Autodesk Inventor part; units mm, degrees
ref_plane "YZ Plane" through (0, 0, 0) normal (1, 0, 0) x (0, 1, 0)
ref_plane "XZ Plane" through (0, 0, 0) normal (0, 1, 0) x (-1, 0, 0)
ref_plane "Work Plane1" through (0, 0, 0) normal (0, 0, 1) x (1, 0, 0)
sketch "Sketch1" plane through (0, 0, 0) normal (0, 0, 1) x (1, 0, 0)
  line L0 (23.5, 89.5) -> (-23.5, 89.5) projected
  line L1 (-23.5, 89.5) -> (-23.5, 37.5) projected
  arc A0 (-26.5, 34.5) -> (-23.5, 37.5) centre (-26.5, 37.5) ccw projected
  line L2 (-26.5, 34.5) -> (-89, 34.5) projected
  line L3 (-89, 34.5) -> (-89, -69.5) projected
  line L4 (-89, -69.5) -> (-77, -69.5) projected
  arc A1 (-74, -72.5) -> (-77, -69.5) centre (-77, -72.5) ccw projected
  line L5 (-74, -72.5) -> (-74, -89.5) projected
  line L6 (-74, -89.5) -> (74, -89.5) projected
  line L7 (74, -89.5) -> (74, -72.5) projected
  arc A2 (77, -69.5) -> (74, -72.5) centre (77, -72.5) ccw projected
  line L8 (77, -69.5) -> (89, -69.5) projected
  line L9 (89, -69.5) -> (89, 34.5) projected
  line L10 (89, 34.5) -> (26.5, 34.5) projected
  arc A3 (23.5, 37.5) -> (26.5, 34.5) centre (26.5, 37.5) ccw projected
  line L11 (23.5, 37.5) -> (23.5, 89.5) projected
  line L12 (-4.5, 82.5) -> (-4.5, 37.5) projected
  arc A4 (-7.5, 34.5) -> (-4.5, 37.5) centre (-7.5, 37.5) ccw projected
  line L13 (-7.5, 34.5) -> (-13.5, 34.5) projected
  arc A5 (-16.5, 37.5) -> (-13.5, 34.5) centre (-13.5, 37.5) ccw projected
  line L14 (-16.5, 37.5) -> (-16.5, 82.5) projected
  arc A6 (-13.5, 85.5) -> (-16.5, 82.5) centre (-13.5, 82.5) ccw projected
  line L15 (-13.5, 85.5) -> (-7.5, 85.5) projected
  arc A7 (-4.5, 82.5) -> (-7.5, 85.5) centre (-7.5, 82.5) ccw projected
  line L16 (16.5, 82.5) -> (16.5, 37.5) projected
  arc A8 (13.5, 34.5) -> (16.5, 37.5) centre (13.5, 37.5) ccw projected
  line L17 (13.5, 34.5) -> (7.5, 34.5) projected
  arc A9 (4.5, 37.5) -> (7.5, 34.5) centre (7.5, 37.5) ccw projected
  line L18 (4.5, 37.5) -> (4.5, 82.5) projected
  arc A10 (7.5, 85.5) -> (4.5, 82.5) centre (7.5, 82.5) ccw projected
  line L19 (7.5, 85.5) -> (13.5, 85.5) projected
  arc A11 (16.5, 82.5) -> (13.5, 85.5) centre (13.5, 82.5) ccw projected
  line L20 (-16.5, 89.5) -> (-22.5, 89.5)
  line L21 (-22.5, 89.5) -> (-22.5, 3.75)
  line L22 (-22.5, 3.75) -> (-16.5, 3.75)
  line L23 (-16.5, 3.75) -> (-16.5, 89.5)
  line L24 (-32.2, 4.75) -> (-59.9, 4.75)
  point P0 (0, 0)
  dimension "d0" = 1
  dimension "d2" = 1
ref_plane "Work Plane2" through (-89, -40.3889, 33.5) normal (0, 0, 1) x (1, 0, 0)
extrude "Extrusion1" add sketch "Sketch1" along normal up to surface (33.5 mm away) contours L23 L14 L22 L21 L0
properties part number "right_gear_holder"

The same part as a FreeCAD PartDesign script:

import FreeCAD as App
import Part
import Sketcher
Q = App.Units.Quantity

doc = App.newDocument("Part")
params = doc.addObject("Spreadsheet::Sheet", "Params")
for row, (alias, value) in enumerate([
    ("sketch1_width", "6 mm"),
    ("sketch1_height", "85.75 mm"),
    ("pad1_length", "33.5 mm"),
], start=1):
    params.set(f"A{row}", alias)
    params.set(f"B{row}", "=" + value)
    params.setAlias(f"B{row}", alias)

body = doc.addObject("PartDesign::Body", "Body")

# Sketch on XY plane
sketch1 = doc.addObject("Sketcher::SketchObject", "Sketch")
body.addObject(sketch1)
sketch1.AttachmentSupport = (doc.XY_Plane, [""])
sketch1.MapMode = "FlatFace"
sketch1.addGeometry(Part.LineSegment(App.Vector(-16, 4, 0), App.Vector(-16, 90, 0)), False)
sketch1.addGeometry(Part.LineSegment(App.Vector(-16, 90, 0), App.Vector(-22, 90, 0)), False)
sketch1.addGeometry(Part.LineSegment(App.Vector(-22, 90, 0), App.Vector(-22, 4, 0)), False)
sketch1.addGeometry(Part.LineSegment(App.Vector(-22, 4, 0), App.Vector(-16, 4, 0)), False)
sketch1.addConstraint(Sketcher.Constraint("Coincident", 0, 2, 1, 1))
sketch1.addConstraint(Sketcher.Constraint("Coincident", 1, 2, 2, 1))
sketch1.addConstraint(Sketcher.Constraint("Coincident", 2, 2, 3, 1))
sketch1.addConstraint(Sketcher.Constraint("Coincident", 3, 2, 0, 1))
sketch1.addConstraint(Sketcher.Constraint("Vertical", 0))
sketch1.addConstraint(Sketcher.Constraint("Horizontal", 1))
sketch1.addConstraint(Sketcher.Constraint("Vertical", 2))
sketch1.addConstraint(Sketcher.Constraint("Horizontal", 3))
sketch1.addConstraint(Sketcher.Constraint("DistanceX", 1, 2, 1, 1, Q("6 mm")))
sketch1.addConstraint(Sketcher.Constraint("DistanceY", 0, 1, 0, 2, Q("85.75 mm")))
sketch1.addConstraint(Sketcher.Constraint("DistanceX", 0, 2, -1, 1, Q("16.5 mm")))
sketch1.addConstraint(Sketcher.Constraint("DistanceY", -1, 1, 0, 2, Q("89.5 mm")))
sketch1.setExpression("Constraints[8]", "Params.sketch1_width")
sketch1.setExpression("Constraints[9]", "Params.sketch1_height")
pad1 = doc.addObject("PartDesign::Pad", "Pad")
body.addObject(pad1)
pad1.Profile = sketch1
pad1.setExpression("Length", "Params.pad1_length")

doc.recompute()
